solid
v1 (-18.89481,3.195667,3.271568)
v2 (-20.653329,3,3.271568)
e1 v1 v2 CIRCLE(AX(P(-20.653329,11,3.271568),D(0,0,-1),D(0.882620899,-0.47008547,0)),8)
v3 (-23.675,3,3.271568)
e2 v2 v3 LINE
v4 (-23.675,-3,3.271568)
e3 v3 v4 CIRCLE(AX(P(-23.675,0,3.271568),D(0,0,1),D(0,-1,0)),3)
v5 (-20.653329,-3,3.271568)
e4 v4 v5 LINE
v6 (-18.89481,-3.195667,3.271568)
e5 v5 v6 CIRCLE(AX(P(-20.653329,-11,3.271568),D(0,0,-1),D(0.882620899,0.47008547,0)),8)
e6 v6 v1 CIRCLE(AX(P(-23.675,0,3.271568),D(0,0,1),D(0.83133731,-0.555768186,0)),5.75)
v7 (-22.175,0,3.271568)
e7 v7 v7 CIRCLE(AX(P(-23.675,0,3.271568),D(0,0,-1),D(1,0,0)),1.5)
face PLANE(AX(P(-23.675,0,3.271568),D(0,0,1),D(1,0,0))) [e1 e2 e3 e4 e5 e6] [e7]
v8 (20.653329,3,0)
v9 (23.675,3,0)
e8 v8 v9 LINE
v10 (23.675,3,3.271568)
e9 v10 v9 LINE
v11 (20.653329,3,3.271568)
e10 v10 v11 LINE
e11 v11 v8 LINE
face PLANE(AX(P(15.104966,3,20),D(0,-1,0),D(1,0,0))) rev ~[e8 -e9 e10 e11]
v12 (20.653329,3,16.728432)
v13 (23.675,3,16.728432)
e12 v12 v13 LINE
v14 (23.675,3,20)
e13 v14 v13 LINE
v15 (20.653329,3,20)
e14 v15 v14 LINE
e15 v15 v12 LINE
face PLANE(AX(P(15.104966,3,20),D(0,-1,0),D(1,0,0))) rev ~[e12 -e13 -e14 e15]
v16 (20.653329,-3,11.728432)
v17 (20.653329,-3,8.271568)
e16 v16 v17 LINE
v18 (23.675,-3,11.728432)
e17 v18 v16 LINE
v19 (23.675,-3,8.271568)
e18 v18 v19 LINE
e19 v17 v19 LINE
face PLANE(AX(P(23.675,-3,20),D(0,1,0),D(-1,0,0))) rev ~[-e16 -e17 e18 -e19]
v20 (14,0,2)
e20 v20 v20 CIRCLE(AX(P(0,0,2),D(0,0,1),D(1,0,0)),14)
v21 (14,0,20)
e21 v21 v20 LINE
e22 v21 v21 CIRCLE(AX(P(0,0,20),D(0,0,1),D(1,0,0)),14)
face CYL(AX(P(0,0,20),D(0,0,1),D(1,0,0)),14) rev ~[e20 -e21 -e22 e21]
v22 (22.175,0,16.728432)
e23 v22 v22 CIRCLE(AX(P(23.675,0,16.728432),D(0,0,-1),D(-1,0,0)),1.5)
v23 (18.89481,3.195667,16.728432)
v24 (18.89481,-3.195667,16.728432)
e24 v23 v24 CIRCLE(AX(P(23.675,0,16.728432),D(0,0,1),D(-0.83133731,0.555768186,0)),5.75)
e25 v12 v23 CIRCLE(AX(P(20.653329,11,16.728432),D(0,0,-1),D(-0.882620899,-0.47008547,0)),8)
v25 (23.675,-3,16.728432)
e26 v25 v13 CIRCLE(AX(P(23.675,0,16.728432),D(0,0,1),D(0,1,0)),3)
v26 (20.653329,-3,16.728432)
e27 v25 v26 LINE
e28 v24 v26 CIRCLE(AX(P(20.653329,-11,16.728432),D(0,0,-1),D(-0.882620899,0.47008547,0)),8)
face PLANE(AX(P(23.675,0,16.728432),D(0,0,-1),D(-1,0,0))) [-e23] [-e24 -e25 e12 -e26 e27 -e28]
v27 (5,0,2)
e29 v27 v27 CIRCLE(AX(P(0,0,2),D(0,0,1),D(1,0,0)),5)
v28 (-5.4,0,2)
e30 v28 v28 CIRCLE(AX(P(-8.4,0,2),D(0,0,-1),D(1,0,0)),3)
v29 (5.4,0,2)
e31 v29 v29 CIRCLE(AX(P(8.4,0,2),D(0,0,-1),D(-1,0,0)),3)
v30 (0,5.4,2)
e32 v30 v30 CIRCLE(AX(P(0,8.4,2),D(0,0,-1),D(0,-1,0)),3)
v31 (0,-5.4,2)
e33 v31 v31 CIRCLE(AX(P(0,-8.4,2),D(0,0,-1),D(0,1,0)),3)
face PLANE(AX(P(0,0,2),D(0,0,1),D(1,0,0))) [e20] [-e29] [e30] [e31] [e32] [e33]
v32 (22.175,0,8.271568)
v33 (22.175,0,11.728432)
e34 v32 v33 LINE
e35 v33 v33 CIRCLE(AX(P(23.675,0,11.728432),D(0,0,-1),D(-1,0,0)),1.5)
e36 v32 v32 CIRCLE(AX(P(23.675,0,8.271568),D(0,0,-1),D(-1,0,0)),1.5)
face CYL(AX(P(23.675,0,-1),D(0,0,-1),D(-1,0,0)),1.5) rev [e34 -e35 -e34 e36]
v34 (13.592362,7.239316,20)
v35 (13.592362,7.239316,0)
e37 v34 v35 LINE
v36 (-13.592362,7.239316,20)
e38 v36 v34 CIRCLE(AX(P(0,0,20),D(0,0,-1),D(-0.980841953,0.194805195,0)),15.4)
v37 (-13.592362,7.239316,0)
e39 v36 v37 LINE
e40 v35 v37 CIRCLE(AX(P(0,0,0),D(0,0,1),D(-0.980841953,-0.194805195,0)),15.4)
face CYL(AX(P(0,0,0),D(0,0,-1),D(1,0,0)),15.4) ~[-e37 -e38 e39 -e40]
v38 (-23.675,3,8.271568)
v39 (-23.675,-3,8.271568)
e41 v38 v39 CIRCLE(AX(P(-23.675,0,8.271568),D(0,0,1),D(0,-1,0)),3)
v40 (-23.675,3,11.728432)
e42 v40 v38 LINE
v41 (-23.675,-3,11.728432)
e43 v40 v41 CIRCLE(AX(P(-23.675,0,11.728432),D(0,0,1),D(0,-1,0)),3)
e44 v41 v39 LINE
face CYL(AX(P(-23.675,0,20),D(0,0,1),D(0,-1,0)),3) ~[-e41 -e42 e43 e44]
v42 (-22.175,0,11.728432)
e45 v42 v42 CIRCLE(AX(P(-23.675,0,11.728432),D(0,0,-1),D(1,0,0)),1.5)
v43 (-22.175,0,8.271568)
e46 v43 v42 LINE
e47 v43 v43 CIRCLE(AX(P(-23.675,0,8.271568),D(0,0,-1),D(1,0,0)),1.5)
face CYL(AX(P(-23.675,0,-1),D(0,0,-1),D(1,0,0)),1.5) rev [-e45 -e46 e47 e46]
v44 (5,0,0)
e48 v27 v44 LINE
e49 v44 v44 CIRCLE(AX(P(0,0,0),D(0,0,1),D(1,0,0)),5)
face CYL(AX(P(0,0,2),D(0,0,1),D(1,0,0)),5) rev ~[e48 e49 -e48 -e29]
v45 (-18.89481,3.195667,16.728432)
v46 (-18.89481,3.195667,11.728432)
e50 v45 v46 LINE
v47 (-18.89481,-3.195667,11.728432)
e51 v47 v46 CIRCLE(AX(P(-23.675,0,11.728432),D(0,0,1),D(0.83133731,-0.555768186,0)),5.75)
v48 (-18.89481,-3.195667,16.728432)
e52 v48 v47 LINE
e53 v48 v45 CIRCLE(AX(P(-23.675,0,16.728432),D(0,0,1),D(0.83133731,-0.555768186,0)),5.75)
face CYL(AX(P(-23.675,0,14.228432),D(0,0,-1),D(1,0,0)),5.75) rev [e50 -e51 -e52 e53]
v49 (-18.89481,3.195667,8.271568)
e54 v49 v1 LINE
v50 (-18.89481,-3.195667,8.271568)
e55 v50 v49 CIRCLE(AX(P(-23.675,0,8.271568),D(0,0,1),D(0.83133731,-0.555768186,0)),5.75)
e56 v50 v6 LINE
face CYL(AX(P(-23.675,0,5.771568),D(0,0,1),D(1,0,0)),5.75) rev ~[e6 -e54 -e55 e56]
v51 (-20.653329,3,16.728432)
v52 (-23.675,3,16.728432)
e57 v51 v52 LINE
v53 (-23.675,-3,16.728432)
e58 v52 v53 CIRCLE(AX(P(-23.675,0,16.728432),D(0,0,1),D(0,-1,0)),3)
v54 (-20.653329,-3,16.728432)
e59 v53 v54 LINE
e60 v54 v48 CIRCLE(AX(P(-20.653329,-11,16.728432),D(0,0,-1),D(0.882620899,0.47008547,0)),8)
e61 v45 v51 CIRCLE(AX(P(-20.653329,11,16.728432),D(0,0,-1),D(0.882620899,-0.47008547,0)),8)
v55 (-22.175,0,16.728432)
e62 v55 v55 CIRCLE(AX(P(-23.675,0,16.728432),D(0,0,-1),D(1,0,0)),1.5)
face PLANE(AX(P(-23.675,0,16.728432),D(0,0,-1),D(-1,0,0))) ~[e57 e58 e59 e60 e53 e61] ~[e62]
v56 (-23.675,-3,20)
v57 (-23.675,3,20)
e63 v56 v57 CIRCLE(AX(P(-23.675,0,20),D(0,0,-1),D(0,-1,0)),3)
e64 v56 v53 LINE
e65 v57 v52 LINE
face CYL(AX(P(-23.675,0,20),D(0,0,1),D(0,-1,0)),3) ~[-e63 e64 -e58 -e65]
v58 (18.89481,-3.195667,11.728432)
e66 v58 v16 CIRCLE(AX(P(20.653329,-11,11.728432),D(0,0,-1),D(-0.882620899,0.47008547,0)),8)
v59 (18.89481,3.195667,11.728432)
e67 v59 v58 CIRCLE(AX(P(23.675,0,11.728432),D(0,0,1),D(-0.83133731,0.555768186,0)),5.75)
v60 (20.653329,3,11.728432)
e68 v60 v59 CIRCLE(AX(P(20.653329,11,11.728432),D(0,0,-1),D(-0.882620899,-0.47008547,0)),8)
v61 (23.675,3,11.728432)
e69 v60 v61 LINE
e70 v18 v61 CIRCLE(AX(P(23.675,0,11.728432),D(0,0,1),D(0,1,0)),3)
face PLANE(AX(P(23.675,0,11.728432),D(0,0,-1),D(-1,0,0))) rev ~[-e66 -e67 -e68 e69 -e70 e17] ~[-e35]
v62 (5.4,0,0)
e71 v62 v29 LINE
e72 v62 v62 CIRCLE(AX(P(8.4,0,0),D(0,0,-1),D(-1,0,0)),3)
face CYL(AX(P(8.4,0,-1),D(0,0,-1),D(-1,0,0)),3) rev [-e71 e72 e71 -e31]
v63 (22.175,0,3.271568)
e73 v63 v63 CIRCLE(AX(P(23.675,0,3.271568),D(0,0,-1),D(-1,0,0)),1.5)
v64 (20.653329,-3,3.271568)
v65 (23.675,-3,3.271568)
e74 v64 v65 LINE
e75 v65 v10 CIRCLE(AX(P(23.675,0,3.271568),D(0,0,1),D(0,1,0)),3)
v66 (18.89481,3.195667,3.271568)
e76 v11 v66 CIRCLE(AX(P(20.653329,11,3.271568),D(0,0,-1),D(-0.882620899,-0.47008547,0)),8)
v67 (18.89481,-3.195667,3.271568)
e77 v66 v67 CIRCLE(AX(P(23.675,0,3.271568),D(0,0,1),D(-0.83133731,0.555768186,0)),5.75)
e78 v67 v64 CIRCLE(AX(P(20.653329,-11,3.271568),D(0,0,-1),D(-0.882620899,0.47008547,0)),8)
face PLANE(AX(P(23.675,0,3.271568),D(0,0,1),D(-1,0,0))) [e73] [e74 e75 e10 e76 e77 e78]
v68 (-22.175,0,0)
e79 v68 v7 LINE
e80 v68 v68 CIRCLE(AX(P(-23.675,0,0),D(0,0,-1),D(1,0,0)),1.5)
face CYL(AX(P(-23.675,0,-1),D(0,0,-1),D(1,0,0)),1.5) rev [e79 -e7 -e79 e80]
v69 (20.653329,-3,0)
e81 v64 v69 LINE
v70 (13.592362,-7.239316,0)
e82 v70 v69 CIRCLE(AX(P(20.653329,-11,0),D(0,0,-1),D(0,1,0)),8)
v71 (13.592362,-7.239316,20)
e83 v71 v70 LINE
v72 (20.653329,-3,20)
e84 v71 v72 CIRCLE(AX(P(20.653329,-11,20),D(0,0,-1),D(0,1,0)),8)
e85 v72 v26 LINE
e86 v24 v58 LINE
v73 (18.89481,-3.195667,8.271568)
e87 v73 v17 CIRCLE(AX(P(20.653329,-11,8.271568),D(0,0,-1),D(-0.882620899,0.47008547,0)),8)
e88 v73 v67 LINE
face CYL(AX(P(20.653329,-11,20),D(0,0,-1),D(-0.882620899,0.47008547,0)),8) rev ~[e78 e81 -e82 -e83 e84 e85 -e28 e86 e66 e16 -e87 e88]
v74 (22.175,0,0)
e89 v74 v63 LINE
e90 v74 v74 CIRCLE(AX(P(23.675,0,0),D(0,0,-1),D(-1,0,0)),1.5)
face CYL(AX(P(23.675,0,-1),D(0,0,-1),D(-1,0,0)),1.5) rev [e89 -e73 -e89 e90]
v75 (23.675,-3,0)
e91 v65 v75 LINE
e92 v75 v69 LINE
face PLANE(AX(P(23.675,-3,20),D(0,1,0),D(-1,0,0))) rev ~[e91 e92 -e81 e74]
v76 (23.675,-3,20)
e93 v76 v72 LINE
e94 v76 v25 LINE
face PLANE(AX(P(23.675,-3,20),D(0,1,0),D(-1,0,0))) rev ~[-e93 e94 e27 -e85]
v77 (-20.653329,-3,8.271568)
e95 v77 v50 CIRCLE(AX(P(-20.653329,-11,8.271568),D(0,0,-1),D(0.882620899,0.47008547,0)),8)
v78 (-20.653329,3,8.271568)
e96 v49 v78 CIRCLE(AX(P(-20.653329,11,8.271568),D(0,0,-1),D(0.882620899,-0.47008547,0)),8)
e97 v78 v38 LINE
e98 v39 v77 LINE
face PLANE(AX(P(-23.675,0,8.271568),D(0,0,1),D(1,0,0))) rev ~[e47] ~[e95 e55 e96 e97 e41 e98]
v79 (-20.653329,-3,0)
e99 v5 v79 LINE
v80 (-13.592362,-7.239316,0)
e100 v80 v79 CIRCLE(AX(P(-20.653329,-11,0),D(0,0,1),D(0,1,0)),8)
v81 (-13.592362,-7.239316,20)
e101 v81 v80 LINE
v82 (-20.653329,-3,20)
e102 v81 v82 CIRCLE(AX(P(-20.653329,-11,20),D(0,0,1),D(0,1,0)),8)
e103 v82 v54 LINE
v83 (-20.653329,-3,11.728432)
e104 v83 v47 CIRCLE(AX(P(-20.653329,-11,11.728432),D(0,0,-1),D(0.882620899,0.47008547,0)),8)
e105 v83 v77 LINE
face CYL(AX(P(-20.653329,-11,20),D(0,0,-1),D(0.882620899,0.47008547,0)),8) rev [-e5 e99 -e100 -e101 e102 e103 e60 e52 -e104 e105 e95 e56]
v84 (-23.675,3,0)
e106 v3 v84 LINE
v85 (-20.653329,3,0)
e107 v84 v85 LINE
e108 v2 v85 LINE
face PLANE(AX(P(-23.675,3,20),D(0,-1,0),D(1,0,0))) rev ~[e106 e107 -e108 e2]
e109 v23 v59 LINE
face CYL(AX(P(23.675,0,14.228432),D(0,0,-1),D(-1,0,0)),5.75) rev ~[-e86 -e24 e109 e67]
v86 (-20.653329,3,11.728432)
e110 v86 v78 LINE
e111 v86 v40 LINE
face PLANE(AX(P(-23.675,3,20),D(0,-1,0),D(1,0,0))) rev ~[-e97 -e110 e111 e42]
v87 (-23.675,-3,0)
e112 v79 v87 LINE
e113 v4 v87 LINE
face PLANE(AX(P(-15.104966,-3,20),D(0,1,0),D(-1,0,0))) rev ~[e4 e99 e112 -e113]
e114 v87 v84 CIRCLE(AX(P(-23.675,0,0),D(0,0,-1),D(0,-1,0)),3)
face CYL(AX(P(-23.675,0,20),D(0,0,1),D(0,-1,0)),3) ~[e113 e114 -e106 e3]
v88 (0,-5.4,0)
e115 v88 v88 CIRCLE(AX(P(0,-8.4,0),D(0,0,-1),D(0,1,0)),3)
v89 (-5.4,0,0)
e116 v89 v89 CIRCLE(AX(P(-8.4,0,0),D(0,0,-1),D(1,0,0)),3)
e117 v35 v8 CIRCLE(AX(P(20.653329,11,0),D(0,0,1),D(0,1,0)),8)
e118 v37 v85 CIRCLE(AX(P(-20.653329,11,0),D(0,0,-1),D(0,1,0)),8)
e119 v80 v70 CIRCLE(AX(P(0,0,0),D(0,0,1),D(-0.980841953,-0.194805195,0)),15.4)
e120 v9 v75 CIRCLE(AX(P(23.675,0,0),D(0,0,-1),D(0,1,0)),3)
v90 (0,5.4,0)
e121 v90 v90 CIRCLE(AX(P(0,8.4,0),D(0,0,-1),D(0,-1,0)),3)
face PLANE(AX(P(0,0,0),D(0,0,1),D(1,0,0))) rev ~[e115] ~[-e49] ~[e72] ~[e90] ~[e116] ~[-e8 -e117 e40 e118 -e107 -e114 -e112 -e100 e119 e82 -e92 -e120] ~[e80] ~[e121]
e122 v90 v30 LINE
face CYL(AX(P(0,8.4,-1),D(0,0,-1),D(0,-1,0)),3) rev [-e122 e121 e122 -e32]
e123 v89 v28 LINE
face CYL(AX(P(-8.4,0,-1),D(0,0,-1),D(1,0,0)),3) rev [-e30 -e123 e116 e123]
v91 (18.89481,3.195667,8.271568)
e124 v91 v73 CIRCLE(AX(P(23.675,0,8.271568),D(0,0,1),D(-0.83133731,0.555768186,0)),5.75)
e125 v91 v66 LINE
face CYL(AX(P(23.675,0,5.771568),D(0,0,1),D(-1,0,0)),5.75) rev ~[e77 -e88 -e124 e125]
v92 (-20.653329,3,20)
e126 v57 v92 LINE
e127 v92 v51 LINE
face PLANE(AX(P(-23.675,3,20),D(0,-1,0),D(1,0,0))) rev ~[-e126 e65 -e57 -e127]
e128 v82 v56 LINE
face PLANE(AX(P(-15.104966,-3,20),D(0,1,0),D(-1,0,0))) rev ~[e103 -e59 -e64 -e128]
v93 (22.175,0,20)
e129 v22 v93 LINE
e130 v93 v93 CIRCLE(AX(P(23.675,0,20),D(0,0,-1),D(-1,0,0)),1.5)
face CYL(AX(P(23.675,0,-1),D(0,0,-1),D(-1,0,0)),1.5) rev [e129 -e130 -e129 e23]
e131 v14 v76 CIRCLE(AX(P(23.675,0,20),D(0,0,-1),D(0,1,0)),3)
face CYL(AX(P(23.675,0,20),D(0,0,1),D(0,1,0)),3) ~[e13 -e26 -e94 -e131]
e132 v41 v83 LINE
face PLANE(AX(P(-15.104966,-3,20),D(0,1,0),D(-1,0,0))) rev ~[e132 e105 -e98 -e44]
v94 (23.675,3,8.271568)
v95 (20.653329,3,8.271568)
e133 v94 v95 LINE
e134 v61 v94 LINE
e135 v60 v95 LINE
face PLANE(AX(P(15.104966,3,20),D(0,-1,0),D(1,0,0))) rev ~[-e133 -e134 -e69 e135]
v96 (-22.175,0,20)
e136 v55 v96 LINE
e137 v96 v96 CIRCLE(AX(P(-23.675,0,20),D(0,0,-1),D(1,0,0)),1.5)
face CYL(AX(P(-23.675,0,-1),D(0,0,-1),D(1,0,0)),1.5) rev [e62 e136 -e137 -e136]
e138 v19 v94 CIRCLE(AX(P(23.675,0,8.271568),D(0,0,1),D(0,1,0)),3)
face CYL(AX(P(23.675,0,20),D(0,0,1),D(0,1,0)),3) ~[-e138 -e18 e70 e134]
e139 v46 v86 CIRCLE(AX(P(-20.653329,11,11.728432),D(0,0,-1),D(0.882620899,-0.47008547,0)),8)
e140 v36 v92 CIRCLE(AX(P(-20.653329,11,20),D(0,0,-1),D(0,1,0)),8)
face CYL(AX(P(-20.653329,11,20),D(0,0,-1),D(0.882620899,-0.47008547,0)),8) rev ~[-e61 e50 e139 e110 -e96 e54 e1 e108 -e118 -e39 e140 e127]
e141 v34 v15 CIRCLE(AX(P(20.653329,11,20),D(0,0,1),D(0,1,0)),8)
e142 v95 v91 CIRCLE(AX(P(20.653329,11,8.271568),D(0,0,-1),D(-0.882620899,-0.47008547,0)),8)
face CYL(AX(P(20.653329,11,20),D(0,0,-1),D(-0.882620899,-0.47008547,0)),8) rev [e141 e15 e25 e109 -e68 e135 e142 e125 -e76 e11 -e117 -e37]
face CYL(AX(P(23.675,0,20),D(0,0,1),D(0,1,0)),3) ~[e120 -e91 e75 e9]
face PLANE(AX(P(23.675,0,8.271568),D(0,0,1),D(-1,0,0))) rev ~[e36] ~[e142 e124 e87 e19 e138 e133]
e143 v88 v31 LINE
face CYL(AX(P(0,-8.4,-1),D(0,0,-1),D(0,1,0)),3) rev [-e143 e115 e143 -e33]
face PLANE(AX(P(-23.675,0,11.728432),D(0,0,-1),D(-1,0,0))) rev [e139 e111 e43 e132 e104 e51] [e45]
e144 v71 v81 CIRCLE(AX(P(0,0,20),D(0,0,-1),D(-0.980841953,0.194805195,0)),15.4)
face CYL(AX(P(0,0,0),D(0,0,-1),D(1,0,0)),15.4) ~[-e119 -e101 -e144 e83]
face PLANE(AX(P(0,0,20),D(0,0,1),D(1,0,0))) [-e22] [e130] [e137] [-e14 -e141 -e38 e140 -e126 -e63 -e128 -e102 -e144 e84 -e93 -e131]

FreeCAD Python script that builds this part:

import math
import FreeCAD as App
import Part
import Sketcher
from FreeCAD import Vector


def edges_at(feature, points):
    """Names of the edges that pass closest to the given points."""
    edges = feature.Shape.Edges
    near = lambda p: min(range(len(edges)), key=lambda i: edges[i].distToShape(Part.Vertex(*p))[0])
    return sorted({f"Edge{near(p) + 1}" for p in points})

doc = App.newDocument("Part")
body = doc.addObject("PartDesign::Body", "Body")

# Sketch on XY plane
sketch1 = doc.addObject("Sketcher::SketchObject", "Sketch")
body.addObject(sketch1)
sketch1.AttachmentSupport = (doc.XY_Plane, [""])
sketch1.MapMode = "FlatFace"
sketch1.addGeometry(Part.Circle(Vector(0, 0, 0), Vector(0, 0, 1), 15.4), False)
sketch1.addConstraint(Sketcher.Constraint("Coincident", 0, 3, -1, 1))
sketch1.addConstraint(Sketcher.Constraint("Diameter", 0, 30.8))
pad1 = doc.addObject("PartDesign::Pad", "Pad")
body.addObject(pad1)
pad1.Profile = sketch1
pad1.Length = 20

# Sketch on XY plane
sketch2 = doc.addObject("Sketcher::SketchObject", "Sketch001")
body.addObject(sketch2)
sketch2.AttachmentSupport = (doc.XY_Plane, [""])
sketch2.MapMode = "FlatFace"
sketch2.AttachmentOffset = App.Placement(Vector(0, 0, 20), App.Rotation())
sketch2.addGeometry(Part.LineSegment(Vector(-15.104966, 3, 0), Vector(-23.675, 3, 0)), False)
sketch2.addGeometry(Part.ArcOfCircle(Part.Circle(Vector(-23.675, 0, 0), Vector(0, 0, 1), 3), math.radians(90), math.radians(270)), False)
sketch2.addGeometry(Part.LineSegment(Vector(-23.675, -3, 0), Vector(-15.104966, -3, 0)), False)
sketch2.addGeometry(Part.ArcOfCircle(Part.Circle(Vector(0, 0, 0), Vector(0, 0, 1), 15.4), math.radians(168.766656), math.radians(191.233344)), False)
sketch2.addConstraint(Sketcher.Constraint("Tangent", 0, 2, 1, 1))
sketch2.addConstraint(Sketcher.Constraint("Tangent", 1, 2, 2, 1))
sketch2.addConstraint(Sketcher.Constraint("Coincident", 2, 2, 3, 2))
sketch2.addConstraint(Sketcher.Constraint("Coincident", 3, 1, 0, 1))
sketch2.addConstraint(Sketcher.Constraint("Horizontal", 0))
sketch2.addConstraint(Sketcher.Constraint("Horizontal", 2))
sketch2.addConstraint(Sketcher.Constraint("Coincident", 3, 3, -1, 1))
sketch2.addConstraint(Sketcher.Constraint("PointOnObject", 1, 3, -1))
sketch2.addConstraint(Sketcher.Constraint("Radius", 1, 3.0))
sketch2.addConstraint(Sketcher.Constraint("Radius", 3, 15.4))
sketch2.addConstraint(Sketcher.Constraint("DistanceX", 1, 3, -1, 1, 23.675))
pad2 = doc.addObject("PartDesign::Pad", "Pad001")
body.addObject(pad2)
pad2.Profile = sketch2
pad2.Length = 20
pad2.Reversed = True
doc.recompute()

fillet = doc.addObject("PartDesign::Fillet", "Fillet")
body.addObject(fillet)
fillet.Base = (pad2, edges_at(pad2, [(-15.105, 3, 10), (-15.105, -3, 10)]))
fillet.Radius = 8
doc.recompute()

polarpattern = doc.addObject("PartDesign::PolarPattern", "PolarPattern")
body.addObject(polarpattern)
polarpattern.Originals = [pad2]
polarpattern.Axis = (doc.Z_Axis, [""])
polarpattern.Angle = 360
polarpattern.Occurrences = 2
body.Tip = polarpattern
doc.recompute()

fillet2 = doc.addObject("PartDesign::Fillet", "Fillet001")
body.addObject(fillet2)
fillet2.Base = (polarpattern, edges_at(polarpattern, [(15.105, -3, 10), (15.105, 3, 10)]))
fillet2.Radius = 8

# Sketch on XY plane
sketch3 = doc.addObject("Sketcher::SketchObject", "Sketch002")
body.addObject(sketch3)
sketch3.AttachmentSupport = (doc.XY_Plane, [""])
sketch3.MapMode = "FlatFace"
sketch3.AttachmentOffset = App.Placement(Vector(0, 0, 20), App.Rotation())
sketch3.addGeometry(Part.Circle(Vector(0, 0, 0), Vector(0, 0, 1), 14), False)
sketch3.addConstraint(Sketcher.Constraint("Coincident", 0, 3, -1, 1))
sketch3.addConstraint(Sketcher.Constraint("Diameter", 0, 28.0))
pocket1 = doc.addObject("PartDesign::Pocket", "Pocket")
body.addObject(pocket1)
pocket1.Profile = sketch3
pocket1.Length = 18

# Sketch on XY plane
sketch4 = doc.addObject("Sketcher::SketchObject", "Sketch003")
body.addObject(sketch4)
sketch4.AttachmentSupport = (doc.XY_Plane, [""])
sketch4.MapMode = "FlatFace"
sketch4.AttachmentOffset = App.Placement(Vector(0, 0, 2), App.Rotation())
sketch4.addGeometry(Part.Circle(Vector(0, 0, 0), Vector(0, 0, 1), 5), False)
sketch4.addConstraint(Sketcher.Constraint("Coincident", 0, 3, -1, 1))
sketch4.addConstraint(Sketcher.Constraint("Diameter", 0, 10.0))
pocket2 = doc.addObject("PartDesign::Pocket", "Pocket001")
body.addObject(pocket2)
pocket2.Profile = sketch4
pocket2.Type = "ThroughAll"
pocket2.Midplane = True

# Sketch on XY plane
sketch5 = doc.addObject("Sketcher::SketchObject", "Sketch004")
body.addObject(sketch5)
sketch5.AttachmentSupport = (doc.XY_Plane, [""])
sketch5.MapMode = "FlatFace"
sketch5.AttachmentOffset = App.Placement(Vector(0, 0, -1), App.Rotation())
sketch5.addGeometry(Part.Circle(Vector(-8.4, 0, 0), Vector(0, 0, 1), 3), False)
sketch5.addConstraint(Sketcher.Constraint("PointOnObject", 0, 3, -1))
sketch5.addConstraint(Sketcher.Constraint("Diameter", 0, 6.0))
sketch5.addConstraint(Sketcher.Constraint("DistanceX", 0, 3, -1, 1, 8.4))
pocket3 = doc.addObject("PartDesign::Pocket", "Pocket002")
body.addObject(pocket3)
pocket3.Profile = sketch5
pocket3.Length = 22
pocket3.Reversed = True
doc.recompute()

polarpattern2 = doc.addObject("PartDesign::PolarPattern", "PolarPattern001")
body.addObject(polarpattern2)
polarpattern2.Originals = [pocket3]
polarpattern2.Axis = (doc.Z_Axis, [""])
polarpattern2.Angle = 360
polarpattern2.Occurrences = 4
body.Tip = polarpattern2

# Sketch on XY plane
sketch6 = doc.addObject("Sketcher::SketchObject", "Sketch005")
body.addObject(sketch6)
sketch6.AttachmentSupport = (doc.XY_Plane, [""])
sketch6.MapMode = "FlatFace"
sketch6.AttachmentOffset = App.Placement(Vector(0, 0, -1), App.Rotation())
sketch6.addGeometry(Part.Circle(Vector(-23.675, 0, 0), Vector(0, 0, 1), 1.5), False)
sketch6.addConstraint(Sketcher.Constraint("PointOnObject", 0, 3, -1))
sketch6.addConstraint(Sketcher.Constraint("Diameter", 0, 3.0))
sketch6.addConstraint(Sketcher.Constraint("DistanceX", 0, 3, -1, 1, 23.675))
pocket4 = doc.addObject("PartDesign::Pocket", "Pocket003")
body.addObject(pocket4)
pocket4.Profile = sketch6
pocket4.Length = 22
pocket4.Reversed = True
doc.recompute()

polarpattern3 = doc.addObject("PartDesign::PolarPattern", "PolarPattern002")
body.addObject(polarpattern3)
polarpattern3.Originals = [pocket4]
polarpattern3.Axis = (doc.Z_Axis, [""])
polarpattern3.Angle = 360
polarpattern3.Occurrences = 2
body.Tip = polarpattern3

# Sketch on XY plane
sketch7 = doc.addObject("Sketcher::SketchObject", "Sketch006")
body.addObject(sketch7)
sketch7.AttachmentSupport = (doc.XY_Plane, [""])
sketch7.MapMode = "FlatFace"
sketch7.AttachmentOffset = App.Placement(Vector(0, 0, 5.771568), App.Rotation())
sketch7.addGeometry(Part.Circle(Vector(-23.675, 0, 0), Vector(0, 0, 1), 5.75), False)
sketch7.addConstraint(Sketcher.Constraint("PointOnObject", 0, 3, -1))
sketch7.addConstraint(Sketcher.Constraint("Diameter", 0, 11.5))
sketch7.addConstraint(Sketcher.Constraint("DistanceX", 0, 3, -1, 1, 23.675))
pocket5 = doc.addObject("PartDesign::Pocket", "Pocket004")
body.addObject(pocket5)
pocket5.Profile = sketch7
pocket5.Length = 5
pocket5.Midplane = True
doc.recompute()

polarpattern4 = doc.addObject("PartDesign::PolarPattern", "PolarPattern003")
body.addObject(polarpattern4)
polarpattern4.Originals = [pocket5]
polarpattern4.Axis = (doc.Z_Axis, [""])
polarpattern4.Angle = 360
polarpattern4.Occurrences = 2
body.Tip = polarpattern4
doc.recompute()

datumplane = doc.addObject("PartDesign::Plane", "DatumPlane")
body.addObject(datumplane)
datumplane.AttachmentSupport = (doc.XY_Plane, [""])
datumplane.MapMode = "FlatFace"
datumplane.AttachmentOffset = App.Placement(Vector(0, 0, 10), App.Rotation())
mirrored = doc.addObject("PartDesign::Mirrored", "Mirrored")
body.addObject(mirrored)
mirrored.Originals = [pocket5]
mirrored.MirrorPlane = (datumplane, [""])
body.Tip = mirrored

# Sketch on XY plane
sketch8 = doc.addObject("Sketcher::SketchObject", "Sketch007")
body.addObject(sketch8)
sketch8.AttachmentSupport = (doc.XY_Plane, [""])
sketch8.MapMode = "FlatFace"
sketch8.AttachmentOffset = App.Placement(Vector(0, 0, 14.228432), App.Rotation())
sketch8.addGeometry(Part.Circle(Vector(23.675, 0, 0), Vector(0, 0, 1), 5.75), False)
sketch8.addConstraint(Sketcher.Constraint("PointOnObject", 0, 3, -1))
sketch8.addConstraint(Sketcher.Constraint("Diameter", 0, 11.5))
sketch8.addConstraint(Sketcher.Constraint("DistanceX", -1, 1, 0, 3, 23.675))
pocket6 = doc.addObject("PartDesign::Pocket", "Pocket005")
body.addObject(pocket6)
pocket6.Profile = sketch8
pocket6.Length = 5
pocket6.Midplane = True

doc.recompute()
